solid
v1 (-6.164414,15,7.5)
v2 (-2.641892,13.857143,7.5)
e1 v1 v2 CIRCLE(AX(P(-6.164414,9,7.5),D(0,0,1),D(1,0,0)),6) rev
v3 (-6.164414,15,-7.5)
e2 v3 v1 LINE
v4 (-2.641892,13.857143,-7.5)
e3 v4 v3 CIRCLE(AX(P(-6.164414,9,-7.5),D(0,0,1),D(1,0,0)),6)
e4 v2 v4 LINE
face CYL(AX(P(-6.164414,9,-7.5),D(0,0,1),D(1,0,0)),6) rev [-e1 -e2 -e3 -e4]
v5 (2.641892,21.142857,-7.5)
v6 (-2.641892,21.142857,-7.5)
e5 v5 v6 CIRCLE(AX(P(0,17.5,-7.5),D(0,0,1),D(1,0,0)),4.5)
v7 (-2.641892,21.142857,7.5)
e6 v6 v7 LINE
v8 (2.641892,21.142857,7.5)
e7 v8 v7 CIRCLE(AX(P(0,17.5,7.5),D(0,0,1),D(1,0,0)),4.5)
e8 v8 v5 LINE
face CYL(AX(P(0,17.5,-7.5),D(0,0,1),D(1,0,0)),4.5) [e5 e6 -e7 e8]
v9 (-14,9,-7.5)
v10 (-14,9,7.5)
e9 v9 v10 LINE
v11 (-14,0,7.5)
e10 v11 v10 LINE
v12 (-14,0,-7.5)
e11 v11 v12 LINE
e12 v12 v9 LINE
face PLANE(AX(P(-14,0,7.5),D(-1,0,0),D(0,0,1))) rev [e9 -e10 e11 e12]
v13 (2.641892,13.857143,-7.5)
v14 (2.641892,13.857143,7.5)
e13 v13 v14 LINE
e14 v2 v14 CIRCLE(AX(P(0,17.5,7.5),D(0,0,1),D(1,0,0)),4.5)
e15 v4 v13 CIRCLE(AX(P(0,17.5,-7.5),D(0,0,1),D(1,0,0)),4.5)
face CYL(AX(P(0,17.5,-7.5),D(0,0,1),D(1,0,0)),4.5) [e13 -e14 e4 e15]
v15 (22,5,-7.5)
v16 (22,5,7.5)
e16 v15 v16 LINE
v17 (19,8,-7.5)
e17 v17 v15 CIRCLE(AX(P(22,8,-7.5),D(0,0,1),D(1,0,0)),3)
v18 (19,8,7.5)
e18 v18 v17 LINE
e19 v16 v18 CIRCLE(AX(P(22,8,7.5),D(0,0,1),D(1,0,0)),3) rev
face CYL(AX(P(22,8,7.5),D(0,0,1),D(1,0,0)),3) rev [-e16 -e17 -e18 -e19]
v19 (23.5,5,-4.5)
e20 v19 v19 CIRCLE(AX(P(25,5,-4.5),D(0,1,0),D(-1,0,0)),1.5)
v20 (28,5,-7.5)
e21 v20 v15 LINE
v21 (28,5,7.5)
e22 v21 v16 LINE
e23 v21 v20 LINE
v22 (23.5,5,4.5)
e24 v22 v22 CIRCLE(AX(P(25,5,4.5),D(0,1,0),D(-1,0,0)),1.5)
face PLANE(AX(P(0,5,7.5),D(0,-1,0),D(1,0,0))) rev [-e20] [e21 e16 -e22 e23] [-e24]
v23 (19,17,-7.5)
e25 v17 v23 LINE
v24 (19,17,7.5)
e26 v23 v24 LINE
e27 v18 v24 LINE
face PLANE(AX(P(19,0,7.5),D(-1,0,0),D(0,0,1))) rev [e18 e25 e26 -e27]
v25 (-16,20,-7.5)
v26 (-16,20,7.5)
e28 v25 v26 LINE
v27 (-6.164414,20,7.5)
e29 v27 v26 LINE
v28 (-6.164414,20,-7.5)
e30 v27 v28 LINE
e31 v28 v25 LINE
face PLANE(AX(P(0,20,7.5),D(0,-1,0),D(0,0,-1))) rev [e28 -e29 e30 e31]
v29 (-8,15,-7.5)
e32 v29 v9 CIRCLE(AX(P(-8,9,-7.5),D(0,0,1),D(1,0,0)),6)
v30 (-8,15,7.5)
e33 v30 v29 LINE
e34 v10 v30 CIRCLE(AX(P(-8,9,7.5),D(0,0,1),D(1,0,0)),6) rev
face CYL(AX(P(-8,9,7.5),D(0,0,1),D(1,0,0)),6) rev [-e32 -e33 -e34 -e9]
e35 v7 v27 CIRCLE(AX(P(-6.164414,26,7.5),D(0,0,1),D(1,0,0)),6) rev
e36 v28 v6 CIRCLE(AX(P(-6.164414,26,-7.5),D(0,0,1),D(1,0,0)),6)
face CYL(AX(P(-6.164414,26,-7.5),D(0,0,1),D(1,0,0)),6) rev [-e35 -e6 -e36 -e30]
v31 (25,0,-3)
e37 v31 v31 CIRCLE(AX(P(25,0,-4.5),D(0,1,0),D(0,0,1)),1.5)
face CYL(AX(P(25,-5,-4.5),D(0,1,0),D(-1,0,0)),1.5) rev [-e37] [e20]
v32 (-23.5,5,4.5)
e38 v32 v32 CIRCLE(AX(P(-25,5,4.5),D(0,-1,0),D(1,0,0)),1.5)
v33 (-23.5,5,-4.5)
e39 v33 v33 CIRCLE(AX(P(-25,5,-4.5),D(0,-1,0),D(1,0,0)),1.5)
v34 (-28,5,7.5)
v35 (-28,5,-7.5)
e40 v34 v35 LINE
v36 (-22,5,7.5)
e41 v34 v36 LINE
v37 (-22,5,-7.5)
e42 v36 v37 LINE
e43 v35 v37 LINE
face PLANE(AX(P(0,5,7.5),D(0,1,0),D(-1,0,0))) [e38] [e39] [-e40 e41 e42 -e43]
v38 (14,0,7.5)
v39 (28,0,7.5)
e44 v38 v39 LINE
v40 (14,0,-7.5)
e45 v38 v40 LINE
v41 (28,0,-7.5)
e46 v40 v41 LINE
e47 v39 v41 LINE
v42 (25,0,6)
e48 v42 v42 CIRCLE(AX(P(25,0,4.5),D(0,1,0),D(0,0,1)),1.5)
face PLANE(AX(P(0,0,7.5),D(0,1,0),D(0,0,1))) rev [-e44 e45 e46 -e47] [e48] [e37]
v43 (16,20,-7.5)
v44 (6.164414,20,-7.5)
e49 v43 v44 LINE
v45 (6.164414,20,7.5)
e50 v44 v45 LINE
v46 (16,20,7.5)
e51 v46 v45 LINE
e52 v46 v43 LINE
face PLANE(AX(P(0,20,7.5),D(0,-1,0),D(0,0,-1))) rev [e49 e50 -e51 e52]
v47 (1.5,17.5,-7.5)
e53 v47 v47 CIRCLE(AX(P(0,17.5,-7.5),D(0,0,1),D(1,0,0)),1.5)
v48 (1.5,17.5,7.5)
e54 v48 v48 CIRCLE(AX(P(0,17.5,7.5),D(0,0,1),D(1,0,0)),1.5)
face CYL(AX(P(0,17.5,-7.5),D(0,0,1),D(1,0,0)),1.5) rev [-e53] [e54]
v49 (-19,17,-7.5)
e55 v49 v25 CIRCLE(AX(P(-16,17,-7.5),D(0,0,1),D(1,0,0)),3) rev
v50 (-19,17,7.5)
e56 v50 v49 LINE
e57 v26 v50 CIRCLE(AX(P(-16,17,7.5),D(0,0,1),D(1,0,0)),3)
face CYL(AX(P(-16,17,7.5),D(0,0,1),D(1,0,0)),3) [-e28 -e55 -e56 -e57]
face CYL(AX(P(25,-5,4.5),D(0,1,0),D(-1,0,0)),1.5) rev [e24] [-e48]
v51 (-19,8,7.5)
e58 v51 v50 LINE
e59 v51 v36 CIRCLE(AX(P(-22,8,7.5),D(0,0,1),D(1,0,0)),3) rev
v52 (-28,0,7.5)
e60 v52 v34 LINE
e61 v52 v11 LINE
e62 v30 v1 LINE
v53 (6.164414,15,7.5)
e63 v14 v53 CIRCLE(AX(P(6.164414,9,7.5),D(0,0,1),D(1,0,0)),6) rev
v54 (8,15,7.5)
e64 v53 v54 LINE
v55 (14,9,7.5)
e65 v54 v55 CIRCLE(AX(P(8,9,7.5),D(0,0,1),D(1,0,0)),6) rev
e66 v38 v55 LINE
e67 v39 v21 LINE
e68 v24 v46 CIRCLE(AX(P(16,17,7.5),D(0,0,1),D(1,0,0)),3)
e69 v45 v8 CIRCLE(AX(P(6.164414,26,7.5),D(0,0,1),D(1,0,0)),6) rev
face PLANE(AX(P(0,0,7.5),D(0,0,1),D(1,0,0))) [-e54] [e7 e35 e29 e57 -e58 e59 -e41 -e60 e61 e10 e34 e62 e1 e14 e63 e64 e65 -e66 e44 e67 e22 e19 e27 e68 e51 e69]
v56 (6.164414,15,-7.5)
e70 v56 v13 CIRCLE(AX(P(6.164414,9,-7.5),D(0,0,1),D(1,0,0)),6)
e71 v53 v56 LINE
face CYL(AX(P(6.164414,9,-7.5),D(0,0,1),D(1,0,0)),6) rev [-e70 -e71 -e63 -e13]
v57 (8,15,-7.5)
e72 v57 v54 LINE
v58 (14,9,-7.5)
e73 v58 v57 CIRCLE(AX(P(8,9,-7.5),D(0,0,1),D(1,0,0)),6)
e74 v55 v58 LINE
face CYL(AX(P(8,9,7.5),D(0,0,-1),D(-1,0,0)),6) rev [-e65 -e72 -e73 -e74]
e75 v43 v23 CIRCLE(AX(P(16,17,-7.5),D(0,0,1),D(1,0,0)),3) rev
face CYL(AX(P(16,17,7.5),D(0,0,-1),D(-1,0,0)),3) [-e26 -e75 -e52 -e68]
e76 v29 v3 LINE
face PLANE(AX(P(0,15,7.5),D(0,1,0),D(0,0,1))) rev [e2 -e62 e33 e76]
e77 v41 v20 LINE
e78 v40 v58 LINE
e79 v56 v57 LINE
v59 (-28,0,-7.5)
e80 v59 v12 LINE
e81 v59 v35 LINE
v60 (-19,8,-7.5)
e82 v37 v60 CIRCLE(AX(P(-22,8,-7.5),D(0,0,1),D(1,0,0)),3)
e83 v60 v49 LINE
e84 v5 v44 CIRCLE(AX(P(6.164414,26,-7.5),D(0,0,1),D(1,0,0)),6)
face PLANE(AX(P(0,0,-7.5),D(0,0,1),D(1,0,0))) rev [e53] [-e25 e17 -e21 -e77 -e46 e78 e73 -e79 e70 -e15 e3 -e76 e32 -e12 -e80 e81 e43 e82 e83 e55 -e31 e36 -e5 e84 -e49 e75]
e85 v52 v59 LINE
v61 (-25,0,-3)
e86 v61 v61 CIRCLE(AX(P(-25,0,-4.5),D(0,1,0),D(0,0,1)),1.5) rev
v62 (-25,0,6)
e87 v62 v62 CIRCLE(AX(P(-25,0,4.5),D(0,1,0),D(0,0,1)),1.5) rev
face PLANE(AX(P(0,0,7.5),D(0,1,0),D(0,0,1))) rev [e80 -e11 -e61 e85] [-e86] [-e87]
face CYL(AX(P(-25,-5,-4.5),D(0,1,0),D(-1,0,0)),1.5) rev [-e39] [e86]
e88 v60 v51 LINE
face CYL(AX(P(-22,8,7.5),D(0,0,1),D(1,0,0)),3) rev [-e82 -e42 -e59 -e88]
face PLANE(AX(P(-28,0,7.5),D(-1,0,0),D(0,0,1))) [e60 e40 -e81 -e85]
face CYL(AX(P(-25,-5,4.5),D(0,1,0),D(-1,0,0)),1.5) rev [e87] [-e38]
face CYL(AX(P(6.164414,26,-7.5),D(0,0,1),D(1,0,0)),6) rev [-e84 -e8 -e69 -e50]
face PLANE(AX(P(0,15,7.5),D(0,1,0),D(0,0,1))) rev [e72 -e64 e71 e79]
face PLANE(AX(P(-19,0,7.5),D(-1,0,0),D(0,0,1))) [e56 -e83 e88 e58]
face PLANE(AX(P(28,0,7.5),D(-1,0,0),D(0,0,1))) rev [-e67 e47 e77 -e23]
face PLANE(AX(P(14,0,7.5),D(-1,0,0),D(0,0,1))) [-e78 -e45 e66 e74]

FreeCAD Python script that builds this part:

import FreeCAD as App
import Part
import Sketcher
from FreeCAD import Vector


def edges_at(feature, points):
    """Names of the edges that pass closest to the given points."""
    edges = feature.Shape.Edges
    near = lambda p: min(range(len(edges)), key=lambda i: edges[i].distToShape(Part.Vertex(*p))[0])
    return sorted({f"Edge{near(p) + 1}" for p in points})


def add_polygon(sketch, points):
    """Adds a closed chain of lines whose ends are joined by coincident constraints."""
    first, n = sketch.GeometryCount, len(points)
    for a, b in zip(points, points[1:] + points[:1]):
        sketch.addGeometry(Part.LineSegment(App.Vector(*a, 0), App.Vector(*b, 0)), False)
    for i in range(n):
        sketch.addConstraint(Sketcher.Constraint("Coincident", first + i, 2, first + (i + 1) % n, 1))

doc = App.newDocument("Part")
body = doc.addObject("PartDesign::Body", "Body")

sketch1 = body.newObject("Sketcher::SketchObject", "Sketch")
sketch1.AttachmentSupport = (doc.getObject("XY_Plane"), [""])
sketch1.MapMode = "FlatFace"
add_polygon(sketch1, [(-28, 5), (-28, 0), (-14, 0), (-14, 15), (14, 15), (14, 0), (28, 0), (28, 5), (19, 5), (19, 20), (-19, 20), (-19, 5)])
sketch1.addConstraint([
    Sketcher.Constraint("Vertical", 0),
    Sketcher.Constraint("Horizontal", 1),
    Sketcher.Constraint("Vertical", 2),
    Sketcher.Constraint("Horizontal", 3),
    Sketcher.Constraint("Vertical", 4),
    Sketcher.Constraint("Horizontal", 5),
    Sketcher.Constraint("Vertical", 6),
    Sketcher.Constraint("Horizontal", 7),
    Sketcher.Constraint("Vertical", 8),
    Sketcher.Constraint("Horizontal", 9),
    Sketcher.Constraint("Vertical", 10),
    Sketcher.Constraint("Horizontal", 11),
    Sketcher.Constraint("Symmetric", 1, 2, 4, 2, -1, 1),
    Sketcher.Constraint("Symmetric", 0, 2, 5, 2, -2),
    Sketcher.Constraint("Symmetric", 7, 2, 10, 2, -2),
    Sketcher.Constraint("Equal", 4, 8),
    Sketcher.Constraint("DistanceX", 1, 1, 1, 2, 14.0),
    Sketcher.Constraint("DistanceX", 3, 1, 3, 2, 28.0),
    Sketcher.Constraint("DistanceX", 7, 2, 7, 1, 9.0),
    Sketcher.Constraint("DistanceY", 0, 2, 0, 1, 5.0),
    Sketcher.Constraint("DistanceY", 2, 1, 2, 2, 15.0),
])
pad1 = body.newObject("PartDesign::Pad", "Pad")
pad1.Profile = sketch1
pad1.Length = 15
pad1.Midplane = True
doc.recompute()

fillet = body.newObject("PartDesign::Fillet", "Fillet")
fillet.Base = (pad1, edges_at(pad1, [
    (-19, 5, 0),
    (-19, 20, 0),
    (19, 20, 0),
    (19, 5, 0),
]))
fillet.Radius = 3
doc.recompute()

fillet2 = body.newObject("PartDesign::Fillet", "Fillet001")
fillet2.Base = (fillet, edges_at(fillet, [(-14, 15, 0), (14, 15, 0)]))
fillet2.Radius = 6

sketch2 = body.newObject("Sketcher::SketchObject", "Sketch001")
sketch2.AttachmentSupport = (doc.getObject("XZ_Plane"), [""])
sketch2.MapMode = "FlatFace"
sketch2.AttachmentOffset = App.Placement(Vector(0, 0, -5), App.Rotation())
sketch2.addGeometry([
    Part.Circle(Vector(25, 4.5, 0), Vector(0, 0, 1), 1.5),
    Part.Circle(Vector(25, -4.5, 0), Vector(0, 0, 1), 1.5),
], False)
sketch2.addConstraint([
    Sketcher.Constraint("Equal", 0, 1),
    Sketcher.Constraint("Symmetric", 0, 3, 1, 3, -1),
    Sketcher.Constraint("Diameter", 0, 3.0),
    Sketcher.Constraint("DistanceX", -1, 1, 0, 3, 25.0),
    Sketcher.Constraint("DistanceY", 1, 3, 0, 3, 9.0),
])
pocket1 = body.newObject("PartDesign::Pocket", "Pocket")
pocket1.Profile = sketch2
pocket1.Length = 10
pocket1.Reversed = True

sketch3 = body.newObject("Sketcher::SketchObject", "Sketch002")
sketch3.AttachmentSupport = (doc.getObject("XY_Plane"), [""])
sketch3.MapMode = "FlatFace"
sketch3.AttachmentOffset = App.Placement(Vector(0, 0, 7.5), App.Rotation())
sketch3.addGeometry(Part.Circle(Vector(0, 17.5, 0), Vector(0, 0, 1), 4.5), False)
sketch3.addConstraint([
    Sketcher.Constraint("PointOnObject", 0, 3, -2),
    Sketcher.Constraint("Diameter", 0, 9.0),
    Sketcher.Constraint("DistanceY", -1, 1, 0, 3, 17.5),
])
pad2 = body.newObject("PartDesign::Pad", "Pad001")
pad2.Profile = sketch3
pad2.Length = 15
pad2.Reversed = True

sketch4 = body.newObject("Sketcher::SketchObject", "Sketch003")
sketch4.AttachmentSupport = (doc.getObject("XY_Plane"), [""])
sketch4.MapMode = "FlatFace"
sketch4.AttachmentOffset = App.Placement(Vector(0, 0, 7.5), App.Rotation())
sketch4.addGeometry(Part.Circle(Vector(0, 17.5, 0), Vector(0, 0, 1), 1.5), False)
sketch4.addConstraint([
    Sketcher.Constraint("PointOnObject", 0, 3, -2),
    Sketcher.Constraint("Diameter", 0, 3.0),
    Sketcher.Constraint("DistanceY", -1, 1, 0, 3, 17.5),
])
pocket2 = body.newObject("PartDesign::Pocket", "Pocket001")
pocket2.Profile = sketch4
pocket2.Type = "ThroughAll"
doc.recompute()

mirrored = body.newObject("PartDesign::Mirrored", "Mirrored")
mirrored.Originals = [pocket1]
mirrored.MirrorPlane = (doc.getObject("YZ_Plane"), [""])
body.Tip = mirrored
doc.recompute()

fillet3 = body.newObject("PartDesign::Fillet", "Fillet002")
fillet3.Base = (mirrored, edges_at(mirrored, [
    (-3.742, 15, 0),
    (-3.742, 20, 0),
    (3.742, 15, 0),
    (3.742, 20, 0),
]))
fillet3.Radius = 6

doc.recompute()
